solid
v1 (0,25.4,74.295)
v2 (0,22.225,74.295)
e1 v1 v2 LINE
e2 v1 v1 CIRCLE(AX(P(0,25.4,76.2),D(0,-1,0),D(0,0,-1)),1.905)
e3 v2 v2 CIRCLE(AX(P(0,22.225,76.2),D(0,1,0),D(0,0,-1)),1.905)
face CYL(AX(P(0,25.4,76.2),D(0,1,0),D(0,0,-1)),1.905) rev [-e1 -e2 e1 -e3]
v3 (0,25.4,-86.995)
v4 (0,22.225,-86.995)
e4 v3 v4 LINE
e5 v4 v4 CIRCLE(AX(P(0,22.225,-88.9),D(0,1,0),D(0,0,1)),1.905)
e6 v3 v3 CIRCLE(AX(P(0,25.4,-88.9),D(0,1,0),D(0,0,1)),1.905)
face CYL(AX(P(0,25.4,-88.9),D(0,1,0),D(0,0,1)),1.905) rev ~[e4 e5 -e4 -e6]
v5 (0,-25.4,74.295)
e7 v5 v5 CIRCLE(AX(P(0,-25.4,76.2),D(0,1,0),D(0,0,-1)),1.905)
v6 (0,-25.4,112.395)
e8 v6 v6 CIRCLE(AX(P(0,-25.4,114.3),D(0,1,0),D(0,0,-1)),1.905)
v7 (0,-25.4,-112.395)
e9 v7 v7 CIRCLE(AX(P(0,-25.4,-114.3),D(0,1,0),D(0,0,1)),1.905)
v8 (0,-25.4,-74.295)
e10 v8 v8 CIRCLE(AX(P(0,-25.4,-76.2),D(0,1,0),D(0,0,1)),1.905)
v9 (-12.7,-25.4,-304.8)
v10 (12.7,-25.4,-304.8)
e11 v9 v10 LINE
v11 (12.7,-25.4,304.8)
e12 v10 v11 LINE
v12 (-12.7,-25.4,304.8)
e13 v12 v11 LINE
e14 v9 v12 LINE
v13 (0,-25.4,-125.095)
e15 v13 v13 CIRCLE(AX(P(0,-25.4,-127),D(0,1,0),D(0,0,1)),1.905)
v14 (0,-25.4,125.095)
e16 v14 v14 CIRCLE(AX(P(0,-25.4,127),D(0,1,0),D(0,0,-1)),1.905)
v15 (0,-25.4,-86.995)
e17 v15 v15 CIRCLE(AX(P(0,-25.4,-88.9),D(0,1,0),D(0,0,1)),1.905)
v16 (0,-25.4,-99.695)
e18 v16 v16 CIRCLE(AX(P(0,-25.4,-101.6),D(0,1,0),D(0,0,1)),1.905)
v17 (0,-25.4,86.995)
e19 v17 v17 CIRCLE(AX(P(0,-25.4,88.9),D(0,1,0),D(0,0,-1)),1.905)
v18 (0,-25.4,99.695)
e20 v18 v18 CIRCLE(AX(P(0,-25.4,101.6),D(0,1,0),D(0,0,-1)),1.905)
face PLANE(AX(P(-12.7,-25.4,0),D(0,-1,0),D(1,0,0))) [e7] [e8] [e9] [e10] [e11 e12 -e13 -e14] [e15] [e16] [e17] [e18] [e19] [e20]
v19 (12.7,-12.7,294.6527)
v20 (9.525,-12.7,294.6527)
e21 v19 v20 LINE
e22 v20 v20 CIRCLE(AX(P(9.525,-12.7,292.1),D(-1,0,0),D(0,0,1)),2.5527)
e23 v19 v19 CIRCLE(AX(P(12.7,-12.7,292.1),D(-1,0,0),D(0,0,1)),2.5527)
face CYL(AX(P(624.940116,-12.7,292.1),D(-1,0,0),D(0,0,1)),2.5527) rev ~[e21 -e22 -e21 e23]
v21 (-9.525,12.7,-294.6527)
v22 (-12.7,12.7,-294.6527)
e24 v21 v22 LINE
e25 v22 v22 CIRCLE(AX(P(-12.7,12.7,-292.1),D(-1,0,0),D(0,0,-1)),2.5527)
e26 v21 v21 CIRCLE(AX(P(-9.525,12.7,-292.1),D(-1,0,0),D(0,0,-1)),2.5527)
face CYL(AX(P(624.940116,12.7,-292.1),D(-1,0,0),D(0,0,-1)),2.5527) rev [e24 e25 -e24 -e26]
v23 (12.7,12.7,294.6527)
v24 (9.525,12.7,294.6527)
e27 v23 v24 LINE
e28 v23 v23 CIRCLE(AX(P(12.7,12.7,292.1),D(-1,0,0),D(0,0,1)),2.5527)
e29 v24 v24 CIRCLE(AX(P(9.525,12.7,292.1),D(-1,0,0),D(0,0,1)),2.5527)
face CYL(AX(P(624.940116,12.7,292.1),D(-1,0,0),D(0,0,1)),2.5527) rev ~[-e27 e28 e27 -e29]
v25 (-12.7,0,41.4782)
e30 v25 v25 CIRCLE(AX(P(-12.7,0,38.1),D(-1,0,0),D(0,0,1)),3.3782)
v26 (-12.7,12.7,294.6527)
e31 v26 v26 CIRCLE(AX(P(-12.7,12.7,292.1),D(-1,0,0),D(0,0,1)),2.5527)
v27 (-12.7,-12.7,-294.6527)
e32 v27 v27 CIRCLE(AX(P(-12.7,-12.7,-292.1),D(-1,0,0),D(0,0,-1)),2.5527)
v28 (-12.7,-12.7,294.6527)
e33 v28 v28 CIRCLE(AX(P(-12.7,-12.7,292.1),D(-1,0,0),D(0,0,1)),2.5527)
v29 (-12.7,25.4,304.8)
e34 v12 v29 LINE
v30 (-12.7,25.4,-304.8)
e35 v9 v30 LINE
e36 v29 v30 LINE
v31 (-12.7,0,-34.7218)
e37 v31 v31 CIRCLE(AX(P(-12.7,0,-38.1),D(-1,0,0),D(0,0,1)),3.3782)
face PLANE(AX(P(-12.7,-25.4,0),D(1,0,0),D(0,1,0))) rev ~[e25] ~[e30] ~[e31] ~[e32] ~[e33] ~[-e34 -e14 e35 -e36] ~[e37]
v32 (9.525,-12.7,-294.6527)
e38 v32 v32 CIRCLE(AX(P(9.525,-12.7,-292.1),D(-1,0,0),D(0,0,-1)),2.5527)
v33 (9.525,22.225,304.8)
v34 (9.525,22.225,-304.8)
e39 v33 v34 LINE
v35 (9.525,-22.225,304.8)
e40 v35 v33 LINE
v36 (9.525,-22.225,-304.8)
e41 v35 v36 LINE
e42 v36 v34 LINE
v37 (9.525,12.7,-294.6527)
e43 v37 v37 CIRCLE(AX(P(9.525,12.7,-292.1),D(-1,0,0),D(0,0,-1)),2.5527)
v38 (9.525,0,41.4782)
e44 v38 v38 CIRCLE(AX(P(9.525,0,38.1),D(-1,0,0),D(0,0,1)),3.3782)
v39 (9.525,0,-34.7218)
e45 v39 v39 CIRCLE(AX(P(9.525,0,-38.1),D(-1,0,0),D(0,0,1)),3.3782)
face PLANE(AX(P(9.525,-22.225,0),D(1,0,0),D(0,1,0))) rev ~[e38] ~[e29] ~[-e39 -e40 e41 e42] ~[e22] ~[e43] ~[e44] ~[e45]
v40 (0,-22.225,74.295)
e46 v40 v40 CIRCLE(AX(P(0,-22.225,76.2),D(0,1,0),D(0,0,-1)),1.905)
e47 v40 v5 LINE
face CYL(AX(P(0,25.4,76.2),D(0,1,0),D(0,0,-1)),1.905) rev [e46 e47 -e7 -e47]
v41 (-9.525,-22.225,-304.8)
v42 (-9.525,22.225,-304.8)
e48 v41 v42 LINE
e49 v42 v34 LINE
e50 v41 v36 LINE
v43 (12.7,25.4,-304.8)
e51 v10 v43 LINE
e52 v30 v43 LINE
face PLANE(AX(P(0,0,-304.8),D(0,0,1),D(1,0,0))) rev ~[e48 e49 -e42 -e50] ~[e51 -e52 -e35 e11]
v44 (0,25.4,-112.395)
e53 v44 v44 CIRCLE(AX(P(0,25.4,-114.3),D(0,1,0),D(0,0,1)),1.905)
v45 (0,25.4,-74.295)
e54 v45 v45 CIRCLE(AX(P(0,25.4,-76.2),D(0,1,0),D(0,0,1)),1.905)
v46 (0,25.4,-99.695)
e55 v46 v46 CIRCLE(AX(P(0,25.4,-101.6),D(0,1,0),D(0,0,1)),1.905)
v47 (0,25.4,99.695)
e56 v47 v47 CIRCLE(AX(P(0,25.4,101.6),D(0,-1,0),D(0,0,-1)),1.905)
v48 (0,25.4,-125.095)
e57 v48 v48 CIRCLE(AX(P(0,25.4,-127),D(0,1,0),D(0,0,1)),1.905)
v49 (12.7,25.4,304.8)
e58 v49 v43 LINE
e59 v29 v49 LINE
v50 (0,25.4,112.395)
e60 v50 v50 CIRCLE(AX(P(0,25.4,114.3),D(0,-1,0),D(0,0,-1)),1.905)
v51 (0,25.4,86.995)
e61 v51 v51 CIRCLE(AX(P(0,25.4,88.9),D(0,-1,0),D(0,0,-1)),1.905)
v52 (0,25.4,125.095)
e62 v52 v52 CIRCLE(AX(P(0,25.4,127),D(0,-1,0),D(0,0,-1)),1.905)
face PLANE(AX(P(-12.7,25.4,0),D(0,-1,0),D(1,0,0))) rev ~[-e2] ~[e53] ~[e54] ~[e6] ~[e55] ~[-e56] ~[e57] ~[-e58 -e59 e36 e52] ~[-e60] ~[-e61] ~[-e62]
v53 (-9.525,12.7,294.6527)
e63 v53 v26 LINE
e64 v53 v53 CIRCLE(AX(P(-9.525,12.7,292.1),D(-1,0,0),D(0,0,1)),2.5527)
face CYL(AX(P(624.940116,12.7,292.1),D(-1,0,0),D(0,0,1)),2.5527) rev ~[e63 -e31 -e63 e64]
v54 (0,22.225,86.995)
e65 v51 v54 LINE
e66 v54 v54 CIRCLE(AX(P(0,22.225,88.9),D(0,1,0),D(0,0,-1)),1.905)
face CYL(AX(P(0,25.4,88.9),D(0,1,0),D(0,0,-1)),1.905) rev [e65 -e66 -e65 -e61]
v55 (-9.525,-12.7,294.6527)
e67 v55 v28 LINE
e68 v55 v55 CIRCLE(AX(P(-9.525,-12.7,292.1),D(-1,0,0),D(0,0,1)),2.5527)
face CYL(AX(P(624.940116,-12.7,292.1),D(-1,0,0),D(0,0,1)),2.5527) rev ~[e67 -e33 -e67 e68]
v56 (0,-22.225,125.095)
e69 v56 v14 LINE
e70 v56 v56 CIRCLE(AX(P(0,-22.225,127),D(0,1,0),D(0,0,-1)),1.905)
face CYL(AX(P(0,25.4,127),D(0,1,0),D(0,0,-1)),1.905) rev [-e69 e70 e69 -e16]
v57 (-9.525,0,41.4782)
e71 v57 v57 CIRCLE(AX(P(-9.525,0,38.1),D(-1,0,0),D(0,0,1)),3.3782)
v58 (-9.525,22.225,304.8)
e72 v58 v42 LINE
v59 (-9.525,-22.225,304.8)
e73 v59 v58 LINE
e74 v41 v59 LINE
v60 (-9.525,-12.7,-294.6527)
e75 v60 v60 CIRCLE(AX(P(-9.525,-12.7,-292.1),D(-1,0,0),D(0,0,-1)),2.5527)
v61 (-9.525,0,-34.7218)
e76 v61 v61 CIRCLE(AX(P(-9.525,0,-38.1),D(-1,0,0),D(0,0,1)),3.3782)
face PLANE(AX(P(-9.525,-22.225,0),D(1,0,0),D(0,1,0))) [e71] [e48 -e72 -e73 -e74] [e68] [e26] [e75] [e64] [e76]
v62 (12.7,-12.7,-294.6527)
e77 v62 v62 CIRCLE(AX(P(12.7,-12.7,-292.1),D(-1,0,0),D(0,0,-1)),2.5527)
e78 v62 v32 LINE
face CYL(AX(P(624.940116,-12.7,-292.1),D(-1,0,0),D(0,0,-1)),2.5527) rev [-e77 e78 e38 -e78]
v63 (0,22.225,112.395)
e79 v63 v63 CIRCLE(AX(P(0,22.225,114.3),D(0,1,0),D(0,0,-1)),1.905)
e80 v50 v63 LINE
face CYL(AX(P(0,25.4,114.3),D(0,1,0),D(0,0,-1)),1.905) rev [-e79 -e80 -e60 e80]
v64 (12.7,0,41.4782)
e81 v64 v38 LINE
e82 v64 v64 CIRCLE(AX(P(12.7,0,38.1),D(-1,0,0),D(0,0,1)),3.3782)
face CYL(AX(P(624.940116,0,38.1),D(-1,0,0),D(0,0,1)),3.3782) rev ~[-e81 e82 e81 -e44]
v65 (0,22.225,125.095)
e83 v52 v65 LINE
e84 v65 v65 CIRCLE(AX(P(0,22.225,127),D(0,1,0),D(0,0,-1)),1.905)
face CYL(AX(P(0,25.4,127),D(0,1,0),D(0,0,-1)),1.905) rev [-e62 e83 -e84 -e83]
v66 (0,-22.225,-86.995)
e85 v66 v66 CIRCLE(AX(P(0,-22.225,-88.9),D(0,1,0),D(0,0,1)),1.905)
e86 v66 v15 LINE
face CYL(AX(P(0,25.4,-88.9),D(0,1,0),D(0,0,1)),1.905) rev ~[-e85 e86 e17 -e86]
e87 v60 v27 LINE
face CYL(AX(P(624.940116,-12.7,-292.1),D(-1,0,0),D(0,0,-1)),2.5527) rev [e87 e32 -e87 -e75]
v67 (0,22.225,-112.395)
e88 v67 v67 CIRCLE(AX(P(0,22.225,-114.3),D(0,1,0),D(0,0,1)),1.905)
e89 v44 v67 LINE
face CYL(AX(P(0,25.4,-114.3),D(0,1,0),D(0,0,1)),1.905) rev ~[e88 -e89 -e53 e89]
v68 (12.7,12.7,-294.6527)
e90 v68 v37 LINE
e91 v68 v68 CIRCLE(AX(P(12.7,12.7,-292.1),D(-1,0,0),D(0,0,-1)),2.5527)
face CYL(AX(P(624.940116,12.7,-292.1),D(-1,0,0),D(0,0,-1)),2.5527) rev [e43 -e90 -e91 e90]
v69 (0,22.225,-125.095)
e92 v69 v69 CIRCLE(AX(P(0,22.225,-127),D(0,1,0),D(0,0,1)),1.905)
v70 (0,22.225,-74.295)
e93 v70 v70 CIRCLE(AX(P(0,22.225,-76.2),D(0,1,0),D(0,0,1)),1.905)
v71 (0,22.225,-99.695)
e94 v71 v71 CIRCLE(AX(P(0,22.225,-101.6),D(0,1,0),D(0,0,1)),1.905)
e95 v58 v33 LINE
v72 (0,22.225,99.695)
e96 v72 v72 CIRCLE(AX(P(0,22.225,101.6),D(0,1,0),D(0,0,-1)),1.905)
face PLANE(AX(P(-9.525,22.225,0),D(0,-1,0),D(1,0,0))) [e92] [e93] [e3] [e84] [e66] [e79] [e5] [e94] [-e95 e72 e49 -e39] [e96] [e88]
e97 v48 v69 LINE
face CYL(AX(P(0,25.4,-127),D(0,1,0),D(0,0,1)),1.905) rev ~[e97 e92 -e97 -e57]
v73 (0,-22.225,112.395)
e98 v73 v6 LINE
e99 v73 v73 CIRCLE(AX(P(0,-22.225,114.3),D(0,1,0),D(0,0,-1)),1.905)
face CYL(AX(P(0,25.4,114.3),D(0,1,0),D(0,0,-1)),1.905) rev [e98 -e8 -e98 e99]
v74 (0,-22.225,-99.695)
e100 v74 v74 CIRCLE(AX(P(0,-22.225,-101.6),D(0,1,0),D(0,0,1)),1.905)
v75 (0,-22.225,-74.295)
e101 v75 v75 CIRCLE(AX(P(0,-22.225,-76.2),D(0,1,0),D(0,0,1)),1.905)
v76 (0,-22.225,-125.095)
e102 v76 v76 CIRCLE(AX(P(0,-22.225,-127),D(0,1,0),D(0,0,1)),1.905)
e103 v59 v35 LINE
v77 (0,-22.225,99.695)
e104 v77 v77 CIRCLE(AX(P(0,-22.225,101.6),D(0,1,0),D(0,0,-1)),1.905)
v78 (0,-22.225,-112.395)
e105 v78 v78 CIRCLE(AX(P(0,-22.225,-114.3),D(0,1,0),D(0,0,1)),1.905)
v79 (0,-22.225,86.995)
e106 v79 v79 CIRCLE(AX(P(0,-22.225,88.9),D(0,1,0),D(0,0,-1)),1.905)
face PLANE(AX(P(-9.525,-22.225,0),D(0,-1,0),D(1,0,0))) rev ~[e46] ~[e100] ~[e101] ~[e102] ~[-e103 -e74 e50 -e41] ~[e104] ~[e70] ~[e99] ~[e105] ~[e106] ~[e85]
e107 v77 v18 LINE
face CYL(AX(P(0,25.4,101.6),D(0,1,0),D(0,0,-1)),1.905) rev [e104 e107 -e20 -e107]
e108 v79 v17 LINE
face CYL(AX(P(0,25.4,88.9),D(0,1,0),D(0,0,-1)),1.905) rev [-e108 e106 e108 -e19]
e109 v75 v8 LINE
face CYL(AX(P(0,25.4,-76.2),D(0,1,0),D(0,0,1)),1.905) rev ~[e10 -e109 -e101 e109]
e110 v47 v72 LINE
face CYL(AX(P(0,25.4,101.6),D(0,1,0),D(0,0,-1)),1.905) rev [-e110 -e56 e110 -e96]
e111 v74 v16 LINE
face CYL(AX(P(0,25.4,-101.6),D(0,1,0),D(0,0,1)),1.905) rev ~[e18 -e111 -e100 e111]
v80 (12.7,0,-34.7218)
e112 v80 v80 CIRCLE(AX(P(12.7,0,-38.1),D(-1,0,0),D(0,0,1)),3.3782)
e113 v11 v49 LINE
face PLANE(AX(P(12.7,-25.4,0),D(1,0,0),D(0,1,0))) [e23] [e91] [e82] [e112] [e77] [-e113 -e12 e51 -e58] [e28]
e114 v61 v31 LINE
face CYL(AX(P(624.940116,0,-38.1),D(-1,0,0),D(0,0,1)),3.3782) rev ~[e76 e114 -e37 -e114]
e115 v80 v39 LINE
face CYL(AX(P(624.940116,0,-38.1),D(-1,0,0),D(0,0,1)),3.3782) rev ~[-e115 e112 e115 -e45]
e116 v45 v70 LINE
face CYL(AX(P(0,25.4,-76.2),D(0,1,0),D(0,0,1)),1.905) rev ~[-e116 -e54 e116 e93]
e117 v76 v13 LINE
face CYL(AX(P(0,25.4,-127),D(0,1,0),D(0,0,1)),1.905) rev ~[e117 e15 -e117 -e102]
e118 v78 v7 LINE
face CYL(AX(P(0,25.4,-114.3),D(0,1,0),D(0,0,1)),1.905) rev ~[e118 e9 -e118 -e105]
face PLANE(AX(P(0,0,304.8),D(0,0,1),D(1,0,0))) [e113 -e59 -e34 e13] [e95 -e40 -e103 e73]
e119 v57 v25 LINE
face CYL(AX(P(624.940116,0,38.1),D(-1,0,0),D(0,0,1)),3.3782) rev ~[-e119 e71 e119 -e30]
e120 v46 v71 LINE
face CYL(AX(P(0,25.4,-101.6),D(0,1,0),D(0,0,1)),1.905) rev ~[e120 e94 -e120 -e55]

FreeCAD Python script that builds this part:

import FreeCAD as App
import Part
import Sketcher

V = App.Vector
Q = App.Units.Quantity

doc = App.newDocument("Part")
body = doc.addObject("PartDesign::Body", "Body")

sketch1 = doc.addObject("Sketcher::SketchObject", "Sketch")
body.addObject(sketch1)
sketch1.AttachmentSupport = (doc.XY_Plane, [""])
sketch1.MapMode = "FlatFace"
sketch1.addGeometry(Part.LineSegment(V(-12.7, 25.4, 0), V(-12.7, -25.4, 0)), False)
sketch1.addGeometry(Part.LineSegment(V(-12.7, -25.4, 0), V(12.7, -25.4, 0)), False)
sketch1.addGeometry(Part.LineSegment(V(12.7, -25.4, 0), V(12.7, 25.4, 0)), False)
sketch1.addGeometry(Part.LineSegment(V(12.7, 25.4, 0), V(-12.7, 25.4, 0)), False)
sketch1.addGeometry(Part.LineSegment(V(9.525, -22.225, 0), V(-9.525, -22.225, 0)), False)
sketch1.addGeometry(Part.LineSegment(V(-9.525, -22.225, 0), V(-9.525, 22.225, 0)), False)
sketch1.addGeometry(Part.LineSegment(V(-9.525, 22.225, 0), V(9.525, 22.225, 0)), False)
sketch1.addGeometry(Part.LineSegment(V(9.525, 22.225, 0), V(9.525, -22.225, 0)), False)
sketch1.addConstraint(Sketcher.Constraint("Coincident", 0, 2, 1, 1))
sketch1.addConstraint(Sketcher.Constraint("Coincident", 1, 2, 2, 1))
sketch1.addConstraint(Sketcher.Constraint("Coincident", 2, 2, 3, 1))
sketch1.addConstraint(Sketcher.Constraint("Coincident", 3, 2, 0, 1))
sketch1.addConstraint(Sketcher.Constraint("Coincident", 4, 2, 5, 1))
sketch1.addConstraint(Sketcher.Constraint("Coincident", 5, 2, 6, 1))
sketch1.addConstraint(Sketcher.Constraint("Coincident", 6, 2, 7, 1))
sketch1.addConstraint(Sketcher.Constraint("Coincident", 7, 2, 4, 1))
sketch1.addConstraint(Sketcher.Constraint("Vertical", 0))
sketch1.addConstraint(Sketcher.Constraint("Horizontal", 1))
sketch1.addConstraint(Sketcher.Constraint("Vertical", 2))
sketch1.addConstraint(Sketcher.Constraint("Horizontal", 3))
sketch1.addConstraint(Sketcher.Constraint("Horizontal", 4))
sketch1.addConstraint(Sketcher.Constraint("Vertical", 5))
sketch1.addConstraint(Sketcher.Constraint("Horizontal", 6))
sketch1.addConstraint(Sketcher.Constraint("Vertical", 7))
sketch1.addConstraint(Sketcher.Constraint("Symmetric", 0, 2, 2, 2, -1, 1))
sketch1.addConstraint(Sketcher.Constraint("Symmetric", 4, 2, 6, 2, -1, 1))
sketch1.addConstraint(Sketcher.Constraint("DistanceX", 1, 1, 1, 2, Q("1 in")))
sketch1.addConstraint(Sketcher.Constraint("DistanceY", 0, 2, 0, 1, Q("2 in")))
sketch1.addConstraint(Sketcher.Constraint("DistanceX", 4, 2, 4, 1, Q("0.75 in")))
sketch1.addConstraint(Sketcher.Constraint("DistanceY", 5, 1, 5, 2, Q("1.75 in")))
pad1 = doc.addObject("PartDesign::Pad", "Pad")
body.addObject(pad1)
pad1.Profile = sketch1
pad1.Length = Q("24 in")
pad1.Midplane = True

sketch2 = doc.addObject("Sketcher::SketchObject", "Sketch001")
body.addObject(sketch2)
sketch2.AttachmentSupport = (doc.YZ_Plane, [""])
sketch2.MapMode = "FlatFace"
sketch2.AttachmentOffset = App.Placement(V(0, 0, 0.5 * 25.4), App.Rotation())
sketch2.addGeometry(Part.Circle(V(12.7, 292.1, 0), V(0, 0, 1), 2.5527), False)
sketch2.addGeometry(Part.Circle(V(-12.7, 292.1, 0), V(0, 0, 1), 2.5527), False)
sketch2.addConstraint(Sketcher.Constraint("Equal", 0, 1))
sketch2.addConstraint(Sketcher.Constraint("Symmetric", 0, 3, 1, 3, -2))
sketch2.addConstraint(Sketcher.Constraint("Diameter", 0, Q("0.201 in")))
sketch2.addConstraint(Sketcher.Constraint("DistanceX", 1, 3, 0, 3, Q("1 in")))
sketch2.addConstraint(Sketcher.Constraint("DistanceY", -1, 1, 0, 3, Q("11.5 in")))
doc.recompute()
hole = doc.addObject("PartDesign::Hole", "Hole")
body.addObject(hole)
hole.Profile = sketch2
hole.ThreadType = "None"
hole.Diameter = Q("0.201 in")
hole.DepthType = "ThroughAll"
doc.recompute()

mirrored = doc.addObject("PartDesign::Mirrored", "Mirrored")
body.addObject(mirrored)
mirrored.Originals = [hole]
mirrored.MirrorPlane = (doc.XY_Plane, [""])
body.Tip = mirrored

sketch3 = doc.addObject("Sketcher::SketchObject", "Sketch002")
body.addObject(sketch3)
sketch3.AttachmentSupport = (doc.YZ_Plane, [""])
sketch3.MapMode = "FlatFace"
sketch3.AttachmentOffset = App.Placement(V(0, 0, 0.5 * 25.4), App.Rotation())
sketch3.addGeometry(Part.Circle(V(0, 38.1, 0), V(0, 0, 1), 3.3782), False)
sketch3.addGeometry(Part.Circle(V(0, -38.1, 0), V(0, 0, 1), 3.3782), False)
sketch3.addConstraint(Sketcher.Constraint("Equal", 0, 1))
sketch3.addConstraint(Sketcher.Constraint("Symmetric", 0, 3, 1, 3, -1, 1))
sketch3.addConstraint(Sketcher.Constraint("PointOnObject", 0, 3, -2))
sketch3.addConstraint(Sketcher.Constraint("Diameter", 0, Q("0.266 in")))
sketch3.addConstraint(Sketcher.Constraint("DistanceY", 1, 3, 0, 3, Q("3 in")))
doc.recompute()
hole2 = doc.addObject("PartDesign::Hole", "Hole001")
body.addObject(hole2)
hole2.Profile = sketch3
hole2.ThreadType = "None"
hole2.Diameter = Q("0.266 in")
hole2.DepthType = "ThroughAll"

sketch4 = doc.addObject("Sketcher::SketchObject", "Sketch003")
body.addObject(sketch4)
sketch4.AttachmentSupport = (doc.XZ_Plane, [""])
sketch4.MapMode = "FlatFace"
sketch4.AttachmentOffset = App.Placement(V(0, 0, -1 * 25.4), App.Rotation())
sketch4.addGeometry(Part.Circle(V(0, -127, 0), V(0, 0, 1), 1.905), False)
sketch4.addGeometry(Part.Circle(V(0, -114.3, 0), V(0, 0, 1), 1.905), False)
sketch4.addGeometry(Part.Circle(V(0, -101.6, 0), V(0, 0, 1), 1.905), False)
sketch4.addGeometry(Part.Circle(V(0, -88.9, 0), V(0, 0, 1), 1.905), False)
sketch4.addGeometry(Part.Circle(V(0, -76.2, 0), V(0, 0, 1), 1.905), False)
sketch4.addConstraint(Sketcher.Constraint("Equal", 0, 1))
sketch4.addConstraint(Sketcher.Constraint("Equal", 1, 2))
sketch4.addConstraint(Sketcher.Constraint("Equal", 2, 3))
sketch4.addConstraint(Sketcher.Constraint("Equal", 3, 4))
sketch4.addConstraint(Sketcher.Constraint("PointOnObject", 0, 3, -2))
sketch4.addConstraint(Sketcher.Constraint("PointOnObject", 1, 3, -2))
sketch4.addConstraint(Sketcher.Constraint("PointOnObject", 2, 3, -2))
sketch4.addConstraint(Sketcher.Constraint("PointOnObject", 3, 3, -2))
sketch4.addConstraint(Sketcher.Constraint("PointOnObject", 4, 3, -2))
sketch4.addConstraint(Sketcher.Constraint("Diameter", 0, Q("0.15 in")))
sketch4.addConstraint(Sketcher.Constraint("DistanceY", 0, 3, -1, 1, Q("5 in")))
sketch4.addConstraint(Sketcher.Constraint("DistanceY", 2, 3, -1, 1, Q("4 in")))
sketch4.addConstraint(Sketcher.Constraint("DistanceY", 4, 3, -1, 1, Q("3 in")))
sketch4.addConstraint(Sketcher.Constraint("DistanceY", 1, 3, 3, 3, Q("1 in")))
sketch4.addConstraint(Sketcher.Constraint("DistanceY", 1, 3, -1, 1, Q("4.5 in")))
pocket1 = doc.addObject("PartDesign::Pocket", "Pocket")
body.addObject(pocket1)
pocket1.Profile = sketch4
pocket1.Type = "ThroughAll"
pocket1.Reversed = True
doc.recompute()

mirrored2 = doc.addObject("PartDesign::Mirrored", "Mirrored001")
body.addObject(mirrored2)
mirrored2.Originals = [pocket1]
mirrored2.MirrorPlane = (doc.XY_Plane, [""])
body.Tip = mirrored2

doc.recompute()
